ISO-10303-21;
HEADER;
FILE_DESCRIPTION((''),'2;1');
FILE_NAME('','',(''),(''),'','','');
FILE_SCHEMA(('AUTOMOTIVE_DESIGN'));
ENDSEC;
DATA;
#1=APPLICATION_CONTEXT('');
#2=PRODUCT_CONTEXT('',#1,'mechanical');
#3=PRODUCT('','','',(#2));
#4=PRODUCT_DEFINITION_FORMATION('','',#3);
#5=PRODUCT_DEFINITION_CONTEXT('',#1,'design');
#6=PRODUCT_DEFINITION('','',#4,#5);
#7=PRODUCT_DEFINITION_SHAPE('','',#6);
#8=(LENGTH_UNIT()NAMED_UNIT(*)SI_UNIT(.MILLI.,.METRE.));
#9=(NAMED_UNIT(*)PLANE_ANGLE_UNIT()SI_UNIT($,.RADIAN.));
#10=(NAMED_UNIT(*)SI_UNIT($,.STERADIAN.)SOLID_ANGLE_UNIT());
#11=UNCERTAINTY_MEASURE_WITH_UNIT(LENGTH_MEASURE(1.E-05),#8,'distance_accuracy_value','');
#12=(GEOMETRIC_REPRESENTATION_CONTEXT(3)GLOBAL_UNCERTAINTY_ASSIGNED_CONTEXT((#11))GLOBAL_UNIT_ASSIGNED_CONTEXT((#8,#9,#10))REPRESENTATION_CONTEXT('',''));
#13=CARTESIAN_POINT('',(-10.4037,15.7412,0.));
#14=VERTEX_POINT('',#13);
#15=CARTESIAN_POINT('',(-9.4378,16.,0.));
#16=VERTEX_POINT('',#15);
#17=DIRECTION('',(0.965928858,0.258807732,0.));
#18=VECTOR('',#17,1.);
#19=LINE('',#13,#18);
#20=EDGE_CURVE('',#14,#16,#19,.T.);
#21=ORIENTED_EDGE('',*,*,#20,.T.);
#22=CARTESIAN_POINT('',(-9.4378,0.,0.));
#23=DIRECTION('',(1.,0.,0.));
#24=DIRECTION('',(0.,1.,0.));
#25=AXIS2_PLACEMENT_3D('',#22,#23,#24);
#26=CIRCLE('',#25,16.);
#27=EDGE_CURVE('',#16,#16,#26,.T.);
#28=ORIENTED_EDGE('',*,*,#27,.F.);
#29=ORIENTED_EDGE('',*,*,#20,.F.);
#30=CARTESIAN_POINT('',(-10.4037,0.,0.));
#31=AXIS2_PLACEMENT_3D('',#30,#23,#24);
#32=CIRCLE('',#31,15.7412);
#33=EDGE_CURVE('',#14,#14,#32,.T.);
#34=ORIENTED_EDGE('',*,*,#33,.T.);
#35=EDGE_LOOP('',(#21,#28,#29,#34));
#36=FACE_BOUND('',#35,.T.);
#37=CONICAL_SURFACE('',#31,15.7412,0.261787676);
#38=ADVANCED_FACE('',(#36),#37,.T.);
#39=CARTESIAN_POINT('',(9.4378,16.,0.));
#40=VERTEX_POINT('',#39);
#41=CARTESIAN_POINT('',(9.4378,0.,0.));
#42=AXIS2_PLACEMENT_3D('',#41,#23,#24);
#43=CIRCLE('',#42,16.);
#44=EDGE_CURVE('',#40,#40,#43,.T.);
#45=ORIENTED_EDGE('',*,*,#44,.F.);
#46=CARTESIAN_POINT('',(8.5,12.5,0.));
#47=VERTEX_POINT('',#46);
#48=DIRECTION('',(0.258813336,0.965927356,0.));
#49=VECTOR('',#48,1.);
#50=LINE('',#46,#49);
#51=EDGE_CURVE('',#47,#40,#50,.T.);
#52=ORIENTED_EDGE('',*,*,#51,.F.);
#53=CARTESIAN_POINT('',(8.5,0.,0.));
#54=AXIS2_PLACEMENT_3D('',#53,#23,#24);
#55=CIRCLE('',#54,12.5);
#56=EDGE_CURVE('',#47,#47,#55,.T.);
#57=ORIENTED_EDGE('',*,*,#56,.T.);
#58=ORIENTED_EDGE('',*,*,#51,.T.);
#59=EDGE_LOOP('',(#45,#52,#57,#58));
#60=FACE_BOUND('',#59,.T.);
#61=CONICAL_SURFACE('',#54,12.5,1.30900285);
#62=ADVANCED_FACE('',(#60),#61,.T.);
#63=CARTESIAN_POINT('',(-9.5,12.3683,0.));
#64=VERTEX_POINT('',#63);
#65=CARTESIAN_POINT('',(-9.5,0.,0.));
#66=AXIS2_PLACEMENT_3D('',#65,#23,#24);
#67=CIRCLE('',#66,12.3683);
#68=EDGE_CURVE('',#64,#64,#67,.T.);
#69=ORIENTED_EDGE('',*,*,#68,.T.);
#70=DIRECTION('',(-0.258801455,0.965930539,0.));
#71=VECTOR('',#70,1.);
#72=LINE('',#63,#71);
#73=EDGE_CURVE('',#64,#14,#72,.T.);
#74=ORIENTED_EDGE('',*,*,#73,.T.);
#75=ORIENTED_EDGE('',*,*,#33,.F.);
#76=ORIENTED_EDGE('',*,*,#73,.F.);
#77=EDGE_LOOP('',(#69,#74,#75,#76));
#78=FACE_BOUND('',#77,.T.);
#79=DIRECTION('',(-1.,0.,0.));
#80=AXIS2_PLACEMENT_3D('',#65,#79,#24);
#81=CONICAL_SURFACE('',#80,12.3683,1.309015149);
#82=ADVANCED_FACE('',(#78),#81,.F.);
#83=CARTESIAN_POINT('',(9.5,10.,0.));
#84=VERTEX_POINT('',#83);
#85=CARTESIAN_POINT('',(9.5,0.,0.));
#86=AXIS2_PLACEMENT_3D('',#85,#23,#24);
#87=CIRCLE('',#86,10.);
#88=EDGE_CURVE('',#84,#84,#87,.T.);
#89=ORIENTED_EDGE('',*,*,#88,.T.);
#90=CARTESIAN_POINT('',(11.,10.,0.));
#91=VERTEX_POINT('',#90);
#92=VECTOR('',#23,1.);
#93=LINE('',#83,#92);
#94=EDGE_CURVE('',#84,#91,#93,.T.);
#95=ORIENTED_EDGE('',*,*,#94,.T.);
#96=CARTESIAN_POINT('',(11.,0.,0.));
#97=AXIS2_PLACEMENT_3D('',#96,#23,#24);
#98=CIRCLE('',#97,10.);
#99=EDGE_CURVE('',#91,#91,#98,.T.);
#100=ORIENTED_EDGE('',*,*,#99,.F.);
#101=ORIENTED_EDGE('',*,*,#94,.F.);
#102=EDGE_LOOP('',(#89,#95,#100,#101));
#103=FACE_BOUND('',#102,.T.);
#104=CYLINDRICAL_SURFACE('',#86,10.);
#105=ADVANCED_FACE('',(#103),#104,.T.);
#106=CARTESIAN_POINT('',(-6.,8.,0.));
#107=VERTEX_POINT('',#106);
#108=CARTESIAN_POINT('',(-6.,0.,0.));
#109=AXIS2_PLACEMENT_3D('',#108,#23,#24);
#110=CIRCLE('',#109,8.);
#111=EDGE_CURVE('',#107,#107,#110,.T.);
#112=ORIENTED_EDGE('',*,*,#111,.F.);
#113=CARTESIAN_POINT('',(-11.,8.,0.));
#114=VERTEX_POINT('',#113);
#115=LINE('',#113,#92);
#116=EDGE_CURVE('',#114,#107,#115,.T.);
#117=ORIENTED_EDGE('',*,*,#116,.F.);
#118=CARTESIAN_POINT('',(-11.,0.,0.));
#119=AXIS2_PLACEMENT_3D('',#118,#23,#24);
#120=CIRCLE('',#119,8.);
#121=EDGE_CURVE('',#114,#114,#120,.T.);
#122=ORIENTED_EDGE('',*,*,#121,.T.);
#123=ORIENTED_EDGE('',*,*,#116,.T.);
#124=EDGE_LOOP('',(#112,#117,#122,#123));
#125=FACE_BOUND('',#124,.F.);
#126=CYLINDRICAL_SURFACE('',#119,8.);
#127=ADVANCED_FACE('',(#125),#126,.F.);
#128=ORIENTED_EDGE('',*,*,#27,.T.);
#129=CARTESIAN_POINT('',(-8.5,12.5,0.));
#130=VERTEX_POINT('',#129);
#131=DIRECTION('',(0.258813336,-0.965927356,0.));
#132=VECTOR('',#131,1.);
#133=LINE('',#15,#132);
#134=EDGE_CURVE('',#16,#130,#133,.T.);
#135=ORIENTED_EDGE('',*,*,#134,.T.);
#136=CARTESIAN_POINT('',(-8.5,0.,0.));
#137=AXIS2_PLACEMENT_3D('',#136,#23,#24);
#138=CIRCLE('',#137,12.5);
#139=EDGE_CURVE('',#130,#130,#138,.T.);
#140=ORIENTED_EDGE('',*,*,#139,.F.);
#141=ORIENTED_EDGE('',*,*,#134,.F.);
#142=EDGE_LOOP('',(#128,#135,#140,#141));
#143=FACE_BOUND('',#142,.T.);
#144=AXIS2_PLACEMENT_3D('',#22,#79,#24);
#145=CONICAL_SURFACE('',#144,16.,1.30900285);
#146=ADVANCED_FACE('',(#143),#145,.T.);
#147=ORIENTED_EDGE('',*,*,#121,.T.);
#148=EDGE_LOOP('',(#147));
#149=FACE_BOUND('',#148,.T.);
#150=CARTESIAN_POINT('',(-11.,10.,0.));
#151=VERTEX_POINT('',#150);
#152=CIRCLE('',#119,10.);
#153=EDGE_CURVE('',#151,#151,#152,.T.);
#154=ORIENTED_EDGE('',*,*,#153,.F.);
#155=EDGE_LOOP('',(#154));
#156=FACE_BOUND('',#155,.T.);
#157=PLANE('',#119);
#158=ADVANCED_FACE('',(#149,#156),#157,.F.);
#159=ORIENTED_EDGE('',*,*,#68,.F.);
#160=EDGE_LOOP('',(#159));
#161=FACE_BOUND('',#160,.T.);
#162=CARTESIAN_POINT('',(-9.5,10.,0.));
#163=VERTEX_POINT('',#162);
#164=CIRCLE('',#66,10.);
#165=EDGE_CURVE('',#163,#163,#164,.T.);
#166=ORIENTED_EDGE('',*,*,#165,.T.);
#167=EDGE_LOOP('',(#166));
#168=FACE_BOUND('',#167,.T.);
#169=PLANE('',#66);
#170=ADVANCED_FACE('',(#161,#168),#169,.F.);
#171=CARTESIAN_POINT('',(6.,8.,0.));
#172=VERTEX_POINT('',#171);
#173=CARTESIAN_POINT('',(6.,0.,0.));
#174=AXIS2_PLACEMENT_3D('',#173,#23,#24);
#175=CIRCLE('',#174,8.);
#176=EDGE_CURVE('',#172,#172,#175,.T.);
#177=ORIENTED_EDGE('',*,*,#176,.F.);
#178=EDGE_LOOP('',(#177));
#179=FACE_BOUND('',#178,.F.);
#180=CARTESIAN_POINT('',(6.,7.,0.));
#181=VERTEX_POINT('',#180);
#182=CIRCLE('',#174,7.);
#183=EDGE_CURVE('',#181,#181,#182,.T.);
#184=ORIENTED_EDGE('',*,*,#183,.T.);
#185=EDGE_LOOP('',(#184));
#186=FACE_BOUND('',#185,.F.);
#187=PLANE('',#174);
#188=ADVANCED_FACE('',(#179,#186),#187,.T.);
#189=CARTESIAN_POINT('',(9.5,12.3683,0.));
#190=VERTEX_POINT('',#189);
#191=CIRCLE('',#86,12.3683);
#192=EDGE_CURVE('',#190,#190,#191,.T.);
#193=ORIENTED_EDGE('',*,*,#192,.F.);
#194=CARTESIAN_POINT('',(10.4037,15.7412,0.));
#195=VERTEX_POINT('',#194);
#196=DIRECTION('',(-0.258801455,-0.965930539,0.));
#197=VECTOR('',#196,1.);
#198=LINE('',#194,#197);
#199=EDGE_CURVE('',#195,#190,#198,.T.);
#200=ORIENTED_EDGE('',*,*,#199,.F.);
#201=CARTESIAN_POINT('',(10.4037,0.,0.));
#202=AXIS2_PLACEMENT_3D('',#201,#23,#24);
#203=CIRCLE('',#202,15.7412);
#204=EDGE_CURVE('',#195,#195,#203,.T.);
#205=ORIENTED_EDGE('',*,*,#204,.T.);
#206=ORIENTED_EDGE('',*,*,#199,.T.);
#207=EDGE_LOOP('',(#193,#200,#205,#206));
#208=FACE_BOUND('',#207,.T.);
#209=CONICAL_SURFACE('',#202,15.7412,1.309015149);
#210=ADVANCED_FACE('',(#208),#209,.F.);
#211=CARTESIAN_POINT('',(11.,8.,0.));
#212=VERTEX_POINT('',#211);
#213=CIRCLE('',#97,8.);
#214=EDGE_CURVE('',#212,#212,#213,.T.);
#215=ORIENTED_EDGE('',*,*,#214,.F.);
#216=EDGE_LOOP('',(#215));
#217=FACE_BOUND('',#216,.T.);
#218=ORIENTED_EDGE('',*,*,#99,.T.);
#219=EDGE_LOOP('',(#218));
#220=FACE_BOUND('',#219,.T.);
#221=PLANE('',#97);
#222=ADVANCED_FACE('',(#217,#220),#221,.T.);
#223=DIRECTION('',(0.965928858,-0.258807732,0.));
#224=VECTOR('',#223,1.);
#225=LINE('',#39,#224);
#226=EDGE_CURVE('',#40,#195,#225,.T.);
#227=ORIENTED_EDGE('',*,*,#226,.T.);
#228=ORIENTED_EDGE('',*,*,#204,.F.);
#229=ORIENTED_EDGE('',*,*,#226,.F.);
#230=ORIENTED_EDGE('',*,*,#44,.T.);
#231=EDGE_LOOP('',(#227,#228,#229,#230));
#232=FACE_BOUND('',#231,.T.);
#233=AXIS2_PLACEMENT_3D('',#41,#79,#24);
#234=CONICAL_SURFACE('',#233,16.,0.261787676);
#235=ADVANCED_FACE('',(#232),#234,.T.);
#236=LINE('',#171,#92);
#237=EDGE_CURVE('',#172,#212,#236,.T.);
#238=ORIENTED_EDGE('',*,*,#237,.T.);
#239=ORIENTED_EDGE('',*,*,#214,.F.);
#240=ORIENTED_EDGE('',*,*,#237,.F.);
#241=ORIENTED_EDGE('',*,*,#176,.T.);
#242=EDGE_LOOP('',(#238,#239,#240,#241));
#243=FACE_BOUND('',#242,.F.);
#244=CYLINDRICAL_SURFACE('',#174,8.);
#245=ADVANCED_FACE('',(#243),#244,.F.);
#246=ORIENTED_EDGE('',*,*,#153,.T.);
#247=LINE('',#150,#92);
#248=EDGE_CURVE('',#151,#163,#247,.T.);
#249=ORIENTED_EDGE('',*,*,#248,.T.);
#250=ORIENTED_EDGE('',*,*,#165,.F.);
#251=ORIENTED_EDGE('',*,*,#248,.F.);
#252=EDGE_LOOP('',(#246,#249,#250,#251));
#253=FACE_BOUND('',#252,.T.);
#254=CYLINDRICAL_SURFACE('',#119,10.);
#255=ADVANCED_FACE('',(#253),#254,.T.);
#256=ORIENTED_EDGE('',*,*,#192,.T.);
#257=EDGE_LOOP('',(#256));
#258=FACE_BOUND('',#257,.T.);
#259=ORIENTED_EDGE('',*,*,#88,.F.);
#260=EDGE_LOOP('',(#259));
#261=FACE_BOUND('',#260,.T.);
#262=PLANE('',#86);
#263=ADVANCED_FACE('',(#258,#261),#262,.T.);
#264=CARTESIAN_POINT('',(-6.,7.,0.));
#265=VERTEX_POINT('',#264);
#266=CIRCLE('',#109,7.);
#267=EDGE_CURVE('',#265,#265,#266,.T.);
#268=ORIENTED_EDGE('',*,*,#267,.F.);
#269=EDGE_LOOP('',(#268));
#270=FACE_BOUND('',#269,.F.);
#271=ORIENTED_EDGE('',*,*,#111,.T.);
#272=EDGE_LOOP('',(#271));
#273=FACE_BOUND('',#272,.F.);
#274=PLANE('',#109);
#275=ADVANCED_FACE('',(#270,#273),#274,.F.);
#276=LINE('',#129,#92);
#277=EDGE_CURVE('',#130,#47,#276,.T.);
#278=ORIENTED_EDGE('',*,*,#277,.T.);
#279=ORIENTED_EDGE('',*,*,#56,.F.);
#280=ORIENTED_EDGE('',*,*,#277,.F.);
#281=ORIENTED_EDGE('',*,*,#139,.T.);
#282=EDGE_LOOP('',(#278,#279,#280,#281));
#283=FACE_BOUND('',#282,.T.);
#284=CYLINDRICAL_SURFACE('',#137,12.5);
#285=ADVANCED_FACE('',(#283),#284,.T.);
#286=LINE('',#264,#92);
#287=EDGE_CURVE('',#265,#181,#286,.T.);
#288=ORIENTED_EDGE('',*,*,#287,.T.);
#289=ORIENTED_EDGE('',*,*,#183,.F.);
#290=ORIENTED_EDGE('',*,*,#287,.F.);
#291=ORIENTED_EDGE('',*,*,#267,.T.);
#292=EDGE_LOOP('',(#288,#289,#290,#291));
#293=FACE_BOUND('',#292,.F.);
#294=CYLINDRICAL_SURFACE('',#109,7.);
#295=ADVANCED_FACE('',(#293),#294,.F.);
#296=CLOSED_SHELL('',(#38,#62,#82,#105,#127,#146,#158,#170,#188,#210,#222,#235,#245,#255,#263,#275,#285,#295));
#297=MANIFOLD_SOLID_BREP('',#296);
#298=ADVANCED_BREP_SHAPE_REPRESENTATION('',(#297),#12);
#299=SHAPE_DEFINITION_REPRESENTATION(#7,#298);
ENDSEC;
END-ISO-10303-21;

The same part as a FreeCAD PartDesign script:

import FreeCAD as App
import Part
import Sketcher
from FreeCAD import Vector
Q = App.Units.Quantity

doc = App.newDocument("Part")
body = doc.addObject("PartDesign::Body", "Body")

sketch1 = doc.addObject("Sketcher::SketchObject", "Sketch")
body.addObject(sketch1)
sketch1.AttachmentSupport = (doc.XY_Plane, [""])
sketch1.MapMode = "FlatFace"
sketch1.addGeometry([
    Part.LineSegment(Vector(-11, 0, 0), Vector(11, 0, 0)),
    Part.LineSegment(Vector(11, 0, 0), Vector(11, 10, 0)),
    Part.LineSegment(Vector(11, 10, 0), Vector(9.5, 10, 0)),
    Part.LineSegment(Vector(9.5, 10, 0), Vector(9.5, 12.3683, 0)),
    Part.LineSegment(Vector(9.5, 12.3683, 0), Vector(10.4037, 15.7412, 0)),
    Part.LineSegment(Vector(10.4037, 15.7412, 0), Vector(9.4378, 16, 0)),
    Part.LineSegment(Vector(9.4378, 16, 0), Vector(8.5, 12.5, 0)),
    Part.LineSegment(Vector(8.5, 12.5, 0), Vector(-8.5, 12.5, 0)),
    Part.LineSegment(Vector(-8.5, 12.5, 0), Vector(-9.4378, 16, 0)),
    Part.LineSegment(Vector(-9.4378, 16, 0), Vector(-10.4037, 15.7412, 0)),
    Part.LineSegment(Vector(-10.4037, 15.7412, 0), Vector(-9.5, 12.3683, 0)),
    Part.LineSegment(Vector(-9.5, 12.3683, 0), Vector(-9.5, 10, 0)),
    Part.LineSegment(Vector(-9.5, 10, 0), Vector(-11, 10, 0)),
    Part.LineSegment(Vector(-11, 10, 0), Vector(-11, 0, 0)),
], False)
sketch1.addConstraint([
    Sketcher.Constraint("Coincident", 0, 2, 1, 1),
    Sketcher.Constraint("Coincident", 1, 2, 2, 1),
    Sketcher.Constraint("Coincident", 2, 2, 3, 1),
    Sketcher.Constraint("Coincident", 3, 2, 4, 1),
    Sketcher.Constraint("Coincident", 4, 2, 5, 1),
    Sketcher.Constraint("Coincident", 5, 2, 6, 1),
    Sketcher.Constraint("Coincident", 6, 2, 7, 1),
    Sketcher.Constraint("Coincident", 7, 2, 8, 1),
    Sketcher.Constraint("Coincident", 8, 2, 9, 1),
    Sketcher.Constraint("Coincident", 9, 2, 10, 1),
    Sketcher.Constraint("Coincident", 10, 2, 11, 1),
    Sketcher.Constraint("Coincident", 11, 2, 12, 1),
    Sketcher.Constraint("Coincident", 12, 2, 13, 1),
    Sketcher.Constraint("Coincident", 13, 2, 0, 1),
    Sketcher.Constraint("Horizontal", 0),
    Sketcher.Constraint("Vertical", 1),
    Sketcher.Constraint("Horizontal", 2),
    Sketcher.Constraint("Vertical", 3),
    Sketcher.Constraint("Horizontal", 7),
    Sketcher.Constraint("Vertical", 11),
    Sketcher.Constraint("Horizontal", 12),
    Sketcher.Constraint("Vertical", 13),
    Sketcher.Constraint("Symmetric", 0, 2, 13, 2, -1, 1),
    Sketcher.Constraint("Symmetric", 5, 2, 8, 2, -2),
    Sketcher.Constraint("Symmetric", 4, 2, 9, 2, -2),
    Sketcher.Constraint("Symmetric", 3, 2, 10, 2, -2),
    Sketcher.Constraint("Perpendicular", 4, 5),
    Sketcher.Constraint("Perpendicular", 5, 6),
    Sketcher.Constraint("Perpendicular", 8, 9),
    Sketcher.Constraint("Horizontal", 2, 2, 11, 2),
    Sketcher.Constraint("DistanceX", 0, 1, 0, 2, Q("22 mm")),
    Sketcher.Constraint("DistanceX", 7, 2, 7, 1, Q("17 mm")),
    Sketcher.Constraint("DistanceY", 1, 1, 1, 2, Q("10 mm")),
    Sketcher.Constraint("Angle", 4, Q("75.001 deg")),
    Sketcher.Constraint("Distance", 5, Q("1 mm")),
    Sketcher.Constraint("DistanceX", 2, 2, 2, 1, Q("1.5 mm")),
    Sketcher.Constraint("DistanceY", -1, 1, 5, 2, Q("16 mm")),
    Sketcher.Constraint("DistanceY", -1, 1, 6, 2, Q("12.5 mm")),
])
revolution = doc.addObject("PartDesign::Revolution", "Revolution")
body.addObject(revolution)
revolution.Profile = sketch1
revolution.ReferenceAxis = (sketch1, ["H_Axis"])
revolution.Angle = 360

sketch2 = doc.addObject("Sketcher::SketchObject", "Sketch001")
body.addObject(sketch2)
sketch2.AttachmentSupport = (doc.XY_Plane, [""])
sketch2.MapMode = "FlatFace"
sketch2.addGeometry([
    Part.LineSegment(Vector(-11, 0, 0), Vector(11, 0, 0)),
    Part.LineSegment(Vector(11, 0, 0), Vector(11, 8, 0)),
    Part.LineSegment(Vector(11, 8, 0), Vector(6, 8, 0)),
    Part.LineSegment(Vector(6, 8, 0), Vector(6, 7, 0)),
    Part.LineSegment(Vector(6, 7, 0), Vector(-6, 7, 0)),
    Part.LineSegment(Vector(-6, 7, 0), Vector(-6, 8, 0)),
    Part.LineSegment(Vector(-6, 8, 0), Vector(-11, 8, 0)),
    Part.LineSegment(Vector(-11, 8, 0), Vector(-11, 0, 0)),
], False)
sketch2.addConstraint([
    Sketcher.Constraint("Coincident", 0, 2, 1, 1),
    Sketcher.Constraint("Coincident", 1, 2, 2, 1),
    Sketcher.Constraint("Coincident", 2, 2, 3, 1),
    Sketcher.Constraint("Coincident", 3, 2, 4, 1),
    Sketcher.Constraint("Coincident", 4, 2, 5, 1),
    Sketcher.Constraint("Coincident", 5, 2, 6, 1),
    Sketcher.Constraint("Coincident", 6, 2, 7, 1),
    Sketcher.Constraint("Coincident", 7, 2, 0, 1),
    Sketcher.Constraint("Horizontal", 0),
    Sketcher.Constraint("Vertical", 1),
    Sketcher.Constraint("Horizontal", 2),
    Sketcher.Constraint("Vertical", 3),
    Sketcher.Constraint("Horizontal", 4),
    Sketcher.Constraint("Vertical", 5),
    Sketcher.Constraint("Horizontal", 6),
    Sketcher.Constraint("Vertical", 7),
    Sketcher.Constraint("Symmetric", 0, 2, 7, 2, -1, 1),
    Sketcher.Constraint("Symmetric", 2, 2, 5, 2, -2),
    Sketcher.Constraint("DistanceX", 0, 1, 0, 2, Q("22 mm")),
    Sketcher.Constraint("DistanceX", 2, 2, 2, 1, Q("5 mm")),
    Sketcher.Constraint("DistanceY", 1, 1, 1, 2, Q("8 mm")),
    Sketcher.Constraint("DistanceY", 3, 2, 3, 1, Q("1 mm")),
])
groove = doc.addObject("PartDesign::Groove", "Groove")
body.addObject(groove)
groove.Profile = sketch2
groove.ReferenceAxis = (sketch2, ["H_Axis"])
groove.Angle = 360

doc.recompute()
